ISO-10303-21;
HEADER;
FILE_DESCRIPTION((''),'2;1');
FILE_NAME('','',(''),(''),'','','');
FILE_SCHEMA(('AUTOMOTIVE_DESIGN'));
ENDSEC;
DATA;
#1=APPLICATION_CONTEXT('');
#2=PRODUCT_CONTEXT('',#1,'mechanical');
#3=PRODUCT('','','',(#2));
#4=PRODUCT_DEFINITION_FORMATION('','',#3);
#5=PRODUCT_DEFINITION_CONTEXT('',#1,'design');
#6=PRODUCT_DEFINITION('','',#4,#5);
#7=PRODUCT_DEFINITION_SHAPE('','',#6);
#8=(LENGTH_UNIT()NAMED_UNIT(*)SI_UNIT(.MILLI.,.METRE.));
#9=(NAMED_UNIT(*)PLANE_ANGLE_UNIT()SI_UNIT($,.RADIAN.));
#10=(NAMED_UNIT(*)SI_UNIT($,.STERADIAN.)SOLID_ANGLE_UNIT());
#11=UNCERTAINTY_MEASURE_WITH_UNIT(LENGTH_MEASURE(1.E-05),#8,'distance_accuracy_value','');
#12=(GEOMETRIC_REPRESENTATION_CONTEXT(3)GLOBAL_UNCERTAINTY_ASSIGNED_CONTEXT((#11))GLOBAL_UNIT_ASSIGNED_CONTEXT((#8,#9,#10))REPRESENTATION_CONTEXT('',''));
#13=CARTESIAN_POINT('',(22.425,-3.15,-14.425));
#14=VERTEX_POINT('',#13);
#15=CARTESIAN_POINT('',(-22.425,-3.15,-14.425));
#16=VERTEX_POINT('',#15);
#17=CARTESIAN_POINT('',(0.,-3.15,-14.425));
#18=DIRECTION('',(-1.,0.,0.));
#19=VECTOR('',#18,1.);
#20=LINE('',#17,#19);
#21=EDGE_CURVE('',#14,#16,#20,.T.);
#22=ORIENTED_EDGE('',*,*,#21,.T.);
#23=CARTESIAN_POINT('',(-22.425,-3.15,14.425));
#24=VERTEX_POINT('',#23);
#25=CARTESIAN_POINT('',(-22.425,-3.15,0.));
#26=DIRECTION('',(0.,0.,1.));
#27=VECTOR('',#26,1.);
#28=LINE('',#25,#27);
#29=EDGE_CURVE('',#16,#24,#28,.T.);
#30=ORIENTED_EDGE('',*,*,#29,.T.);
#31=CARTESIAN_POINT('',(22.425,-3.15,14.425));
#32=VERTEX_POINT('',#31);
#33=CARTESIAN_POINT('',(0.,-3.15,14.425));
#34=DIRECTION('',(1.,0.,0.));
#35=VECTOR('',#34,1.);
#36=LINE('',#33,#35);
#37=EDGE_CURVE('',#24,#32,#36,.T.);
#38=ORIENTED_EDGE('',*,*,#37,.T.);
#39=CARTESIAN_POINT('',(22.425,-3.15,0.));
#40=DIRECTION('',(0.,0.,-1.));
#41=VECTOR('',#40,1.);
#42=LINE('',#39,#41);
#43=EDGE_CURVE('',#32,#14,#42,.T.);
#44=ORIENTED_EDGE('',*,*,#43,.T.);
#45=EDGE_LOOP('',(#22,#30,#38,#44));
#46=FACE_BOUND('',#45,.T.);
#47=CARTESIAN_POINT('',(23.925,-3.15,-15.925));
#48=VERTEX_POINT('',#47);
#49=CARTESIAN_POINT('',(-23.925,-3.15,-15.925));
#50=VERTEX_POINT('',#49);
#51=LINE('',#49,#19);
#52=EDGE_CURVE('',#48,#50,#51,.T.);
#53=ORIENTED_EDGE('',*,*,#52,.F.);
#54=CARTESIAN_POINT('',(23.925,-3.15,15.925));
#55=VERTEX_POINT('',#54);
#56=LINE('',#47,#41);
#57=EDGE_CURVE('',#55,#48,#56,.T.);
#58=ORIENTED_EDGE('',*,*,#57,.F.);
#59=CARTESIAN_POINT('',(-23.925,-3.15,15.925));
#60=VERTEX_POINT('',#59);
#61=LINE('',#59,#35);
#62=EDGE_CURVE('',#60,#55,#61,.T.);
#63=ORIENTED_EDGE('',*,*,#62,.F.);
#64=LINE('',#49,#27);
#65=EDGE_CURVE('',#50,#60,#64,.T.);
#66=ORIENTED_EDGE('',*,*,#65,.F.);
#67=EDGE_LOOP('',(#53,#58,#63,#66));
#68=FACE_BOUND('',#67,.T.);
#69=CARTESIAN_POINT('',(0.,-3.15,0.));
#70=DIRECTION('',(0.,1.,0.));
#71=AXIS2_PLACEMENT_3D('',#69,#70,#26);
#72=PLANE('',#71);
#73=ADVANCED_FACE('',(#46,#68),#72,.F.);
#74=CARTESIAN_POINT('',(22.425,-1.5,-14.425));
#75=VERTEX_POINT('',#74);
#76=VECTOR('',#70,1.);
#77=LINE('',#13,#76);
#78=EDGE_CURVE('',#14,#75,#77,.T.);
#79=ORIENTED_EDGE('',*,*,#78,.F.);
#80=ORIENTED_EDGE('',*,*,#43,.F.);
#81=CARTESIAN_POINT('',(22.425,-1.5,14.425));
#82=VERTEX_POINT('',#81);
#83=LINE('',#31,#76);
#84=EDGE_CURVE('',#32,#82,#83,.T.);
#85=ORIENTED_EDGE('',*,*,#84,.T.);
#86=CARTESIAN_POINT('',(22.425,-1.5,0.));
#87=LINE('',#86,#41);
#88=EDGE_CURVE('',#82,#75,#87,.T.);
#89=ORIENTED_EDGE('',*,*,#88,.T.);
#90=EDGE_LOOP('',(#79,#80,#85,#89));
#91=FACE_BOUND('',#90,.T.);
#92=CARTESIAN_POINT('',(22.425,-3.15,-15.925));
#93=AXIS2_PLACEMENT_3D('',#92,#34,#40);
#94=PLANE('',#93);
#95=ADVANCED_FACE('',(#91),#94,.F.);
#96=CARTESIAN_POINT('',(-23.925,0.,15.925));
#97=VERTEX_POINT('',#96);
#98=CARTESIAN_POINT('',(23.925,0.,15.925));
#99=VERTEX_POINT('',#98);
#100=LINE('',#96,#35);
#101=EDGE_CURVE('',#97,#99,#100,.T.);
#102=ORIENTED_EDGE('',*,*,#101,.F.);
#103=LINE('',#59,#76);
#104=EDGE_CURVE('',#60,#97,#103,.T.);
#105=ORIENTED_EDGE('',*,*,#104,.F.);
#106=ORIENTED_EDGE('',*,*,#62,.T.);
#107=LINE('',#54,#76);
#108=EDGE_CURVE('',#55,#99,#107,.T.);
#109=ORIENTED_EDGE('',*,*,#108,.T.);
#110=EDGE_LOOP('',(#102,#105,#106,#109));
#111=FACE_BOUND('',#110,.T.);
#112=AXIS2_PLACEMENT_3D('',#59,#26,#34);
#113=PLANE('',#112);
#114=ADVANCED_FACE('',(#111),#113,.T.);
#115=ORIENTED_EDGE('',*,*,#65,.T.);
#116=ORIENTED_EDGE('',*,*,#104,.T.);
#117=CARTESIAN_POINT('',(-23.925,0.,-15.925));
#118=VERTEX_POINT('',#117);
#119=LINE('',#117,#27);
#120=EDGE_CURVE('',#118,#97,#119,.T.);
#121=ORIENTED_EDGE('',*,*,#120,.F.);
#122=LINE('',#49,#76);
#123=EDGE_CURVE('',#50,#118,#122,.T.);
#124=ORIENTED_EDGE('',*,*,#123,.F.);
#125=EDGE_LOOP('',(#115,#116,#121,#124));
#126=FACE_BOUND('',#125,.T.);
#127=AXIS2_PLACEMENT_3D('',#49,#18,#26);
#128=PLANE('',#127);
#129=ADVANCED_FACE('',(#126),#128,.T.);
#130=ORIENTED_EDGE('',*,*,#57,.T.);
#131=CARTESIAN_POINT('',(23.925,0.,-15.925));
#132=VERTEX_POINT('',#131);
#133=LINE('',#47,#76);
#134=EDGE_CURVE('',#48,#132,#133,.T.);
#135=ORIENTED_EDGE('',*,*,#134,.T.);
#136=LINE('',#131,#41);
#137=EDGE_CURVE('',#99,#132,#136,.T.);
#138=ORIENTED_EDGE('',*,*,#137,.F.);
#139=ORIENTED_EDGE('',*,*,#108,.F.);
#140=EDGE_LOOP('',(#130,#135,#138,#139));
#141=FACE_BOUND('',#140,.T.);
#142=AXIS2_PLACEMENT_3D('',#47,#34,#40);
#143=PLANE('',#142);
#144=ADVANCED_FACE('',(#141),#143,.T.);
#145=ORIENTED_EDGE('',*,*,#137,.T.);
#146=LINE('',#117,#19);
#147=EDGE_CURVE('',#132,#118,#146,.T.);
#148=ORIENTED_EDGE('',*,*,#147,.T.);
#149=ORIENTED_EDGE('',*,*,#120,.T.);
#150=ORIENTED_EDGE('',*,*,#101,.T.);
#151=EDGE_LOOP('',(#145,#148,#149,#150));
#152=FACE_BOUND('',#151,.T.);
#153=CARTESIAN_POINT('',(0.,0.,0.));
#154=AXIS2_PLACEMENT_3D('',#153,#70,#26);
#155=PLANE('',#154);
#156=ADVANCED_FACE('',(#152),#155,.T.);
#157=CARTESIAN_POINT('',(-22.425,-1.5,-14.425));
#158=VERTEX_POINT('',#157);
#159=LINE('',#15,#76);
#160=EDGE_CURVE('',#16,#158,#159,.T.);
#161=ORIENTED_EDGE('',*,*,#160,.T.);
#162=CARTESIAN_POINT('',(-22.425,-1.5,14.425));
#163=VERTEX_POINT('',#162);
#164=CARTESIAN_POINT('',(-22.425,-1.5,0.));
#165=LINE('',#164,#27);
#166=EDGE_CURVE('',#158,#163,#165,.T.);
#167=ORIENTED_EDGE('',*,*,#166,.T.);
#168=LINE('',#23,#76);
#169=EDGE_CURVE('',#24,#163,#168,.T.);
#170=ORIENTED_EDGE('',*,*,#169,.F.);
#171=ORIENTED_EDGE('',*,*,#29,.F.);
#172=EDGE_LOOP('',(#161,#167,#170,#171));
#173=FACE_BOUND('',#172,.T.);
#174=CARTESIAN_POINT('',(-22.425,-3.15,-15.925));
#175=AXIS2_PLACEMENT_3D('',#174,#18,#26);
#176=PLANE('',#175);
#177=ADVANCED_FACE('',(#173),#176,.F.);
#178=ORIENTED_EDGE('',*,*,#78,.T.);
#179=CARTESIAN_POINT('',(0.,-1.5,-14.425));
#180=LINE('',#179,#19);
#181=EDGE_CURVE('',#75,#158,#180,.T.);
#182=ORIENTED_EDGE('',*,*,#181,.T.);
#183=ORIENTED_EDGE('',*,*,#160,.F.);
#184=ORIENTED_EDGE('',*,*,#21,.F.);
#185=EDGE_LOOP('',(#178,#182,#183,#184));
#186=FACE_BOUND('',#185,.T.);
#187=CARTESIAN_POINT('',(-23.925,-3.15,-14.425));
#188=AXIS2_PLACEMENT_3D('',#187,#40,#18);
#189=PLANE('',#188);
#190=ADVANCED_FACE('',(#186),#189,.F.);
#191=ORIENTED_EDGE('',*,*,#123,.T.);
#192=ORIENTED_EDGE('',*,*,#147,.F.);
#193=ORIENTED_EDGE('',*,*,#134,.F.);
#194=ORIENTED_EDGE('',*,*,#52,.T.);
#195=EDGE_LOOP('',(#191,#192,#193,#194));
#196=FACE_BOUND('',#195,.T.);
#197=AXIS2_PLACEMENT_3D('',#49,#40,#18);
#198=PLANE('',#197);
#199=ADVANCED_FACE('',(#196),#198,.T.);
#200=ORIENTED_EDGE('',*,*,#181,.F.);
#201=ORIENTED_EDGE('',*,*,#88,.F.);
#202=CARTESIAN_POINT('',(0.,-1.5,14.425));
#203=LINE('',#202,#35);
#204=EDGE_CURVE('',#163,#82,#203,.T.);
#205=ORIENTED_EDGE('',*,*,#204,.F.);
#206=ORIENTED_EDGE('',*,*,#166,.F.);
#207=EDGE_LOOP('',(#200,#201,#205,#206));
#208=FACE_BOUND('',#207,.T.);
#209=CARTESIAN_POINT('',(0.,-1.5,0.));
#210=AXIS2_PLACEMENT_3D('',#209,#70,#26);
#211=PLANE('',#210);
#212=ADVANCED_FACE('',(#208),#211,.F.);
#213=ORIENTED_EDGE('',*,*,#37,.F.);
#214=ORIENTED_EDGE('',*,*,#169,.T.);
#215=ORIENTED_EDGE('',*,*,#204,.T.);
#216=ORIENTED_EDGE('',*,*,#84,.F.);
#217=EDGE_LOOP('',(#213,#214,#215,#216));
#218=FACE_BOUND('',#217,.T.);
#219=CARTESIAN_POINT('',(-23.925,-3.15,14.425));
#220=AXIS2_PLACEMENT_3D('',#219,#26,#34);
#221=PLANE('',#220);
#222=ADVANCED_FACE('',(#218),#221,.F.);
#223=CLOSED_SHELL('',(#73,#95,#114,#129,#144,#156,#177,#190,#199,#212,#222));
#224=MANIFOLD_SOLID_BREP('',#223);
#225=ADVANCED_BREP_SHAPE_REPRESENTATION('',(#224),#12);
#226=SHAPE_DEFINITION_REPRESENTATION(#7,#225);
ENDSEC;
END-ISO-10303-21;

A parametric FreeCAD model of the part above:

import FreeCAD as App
import Part
import Sketcher
from FreeCAD import Vector


def faces_at(feature, points):
    """Names of the faces that lie closest to the given points."""
    faces = feature.Shape.Faces
    near = lambda p: min(range(len(faces)), key=lambda i: faces[i].distToShape(Part.Vertex(*p))[0])
    return sorted({f"Face{near(p) + 1}" for p in points})

doc = App.newDocument("Part")
body = doc.addObject("PartDesign::Body", "Body")

# Sketch on XZ plane
sketch1 = doc.addObject("Sketcher::SketchObject", "Sketch")
body.addObject(sketch1)
sketch1.AttachmentSupport = (doc.XZ_Plane, [""])
sketch1.MapMode = "FlatFace"
sketch1.addGeometry(Part.LineSegment(Vector(-24, -16, 0), Vector(-24, 16, 0)), False)
sketch1.addGeometry(Part.LineSegment(Vector(-24, 16, 0), Vector(24, 16, 0)), False)
sketch1.addGeometry(Part.LineSegment(Vector(24, 16, 0), Vector(24, -16, 0)), False)
sketch1.addGeometry(Part.LineSegment(Vector(24, -16, 0), Vector(-24, -16, 0)), False)
sketch1.addConstraint(Sketcher.Constraint("Coincident", 0, 2, 1, 1))
sketch1.addConstraint(Sketcher.Constraint("Coincident", 1, 2, 2, 1))
sketch1.addConstraint(Sketcher.Constraint("Coincident", 2, 2, 3, 1))
sketch1.addConstraint(Sketcher.Constraint("Coincident", 3, 2, 0, 1))
sketch1.addConstraint(Sketcher.Constraint("Vertical", 0))
sketch1.addConstraint(Sketcher.Constraint("Horizontal", 1))
sketch1.addConstraint(Sketcher.Constraint("Vertical", 2))
sketch1.addConstraint(Sketcher.Constraint("Horizontal", 3))
sketch1.addConstraint(Sketcher.Constraint("Symmetric", 0, 2, 2, 2, -1, 1))
sketch1.addConstraint(Sketcher.Constraint("DistanceX", 1, 1, 1, 2, 47.85))
sketch1.addConstraint(Sketcher.Constraint("DistanceY", 0, 1, 0, 2, 31.85))
pad1 = doc.addObject("PartDesign::Pad", "Pad")
body.addObject(pad1)
pad1.Profile = sketch1
pad1.Length = 3.15
doc.recompute()

thickness = doc.addObject("PartDesign::Thickness", "Thickness")
body.addObject(thickness)
thickness.Base = (pad1, faces_at(pad1, [(0, -3.15, 0)]))
thickness.Value = 1.5
thickness.Reversed = True
thickness.Join = "Intersection"

doc.recompute()
